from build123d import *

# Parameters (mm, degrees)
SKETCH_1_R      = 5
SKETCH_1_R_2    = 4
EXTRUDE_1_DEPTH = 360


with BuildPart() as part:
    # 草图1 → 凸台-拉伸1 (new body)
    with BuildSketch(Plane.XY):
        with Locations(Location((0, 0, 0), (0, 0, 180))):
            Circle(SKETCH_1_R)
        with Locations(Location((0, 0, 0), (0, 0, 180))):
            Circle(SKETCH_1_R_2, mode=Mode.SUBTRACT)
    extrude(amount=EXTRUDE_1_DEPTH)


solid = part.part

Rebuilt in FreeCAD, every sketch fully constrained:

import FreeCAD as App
import Part
import Sketcher

doc = App.newDocument("Part")
body = doc.addObject("PartDesign::Body", "Body")

# Sketch on XY plane
sketch1 = doc.addObject("Sketcher::SketchObject", "Sketch")
body.addObject(sketch1)
sketch1.AttachmentSupport = (doc.XY_Plane, [""])
sketch1.MapMode = "FlatFace"
sketch1.addGeometry(Part.Circle(App.Vector(0, 0, 0), App.Vector(0, 0, 1), 5), False)
sketch1.addGeometry(Part.Circle(App.Vector(0, 0, 0), App.Vector(0, 0, 1), 4), False)
sketch1.addConstraint(Sketcher.Constraint("Coincident", 0, 3, -1, 1))
sketch1.addConstraint(Sketcher.Constraint("Coincident", 1, 3, -1, 1))
sketch1.addConstraint(Sketcher.Constraint("Diameter", 0, 10.0))
sketch1.addConstraint(Sketcher.Constraint("Diameter", 1, 8.0))
pad1 = doc.addObject("PartDesign::Pad", "Pad")
body.addObject(pad1)
pad1.Profile = sketch1
pad1.Length = 360

doc.recompute()
